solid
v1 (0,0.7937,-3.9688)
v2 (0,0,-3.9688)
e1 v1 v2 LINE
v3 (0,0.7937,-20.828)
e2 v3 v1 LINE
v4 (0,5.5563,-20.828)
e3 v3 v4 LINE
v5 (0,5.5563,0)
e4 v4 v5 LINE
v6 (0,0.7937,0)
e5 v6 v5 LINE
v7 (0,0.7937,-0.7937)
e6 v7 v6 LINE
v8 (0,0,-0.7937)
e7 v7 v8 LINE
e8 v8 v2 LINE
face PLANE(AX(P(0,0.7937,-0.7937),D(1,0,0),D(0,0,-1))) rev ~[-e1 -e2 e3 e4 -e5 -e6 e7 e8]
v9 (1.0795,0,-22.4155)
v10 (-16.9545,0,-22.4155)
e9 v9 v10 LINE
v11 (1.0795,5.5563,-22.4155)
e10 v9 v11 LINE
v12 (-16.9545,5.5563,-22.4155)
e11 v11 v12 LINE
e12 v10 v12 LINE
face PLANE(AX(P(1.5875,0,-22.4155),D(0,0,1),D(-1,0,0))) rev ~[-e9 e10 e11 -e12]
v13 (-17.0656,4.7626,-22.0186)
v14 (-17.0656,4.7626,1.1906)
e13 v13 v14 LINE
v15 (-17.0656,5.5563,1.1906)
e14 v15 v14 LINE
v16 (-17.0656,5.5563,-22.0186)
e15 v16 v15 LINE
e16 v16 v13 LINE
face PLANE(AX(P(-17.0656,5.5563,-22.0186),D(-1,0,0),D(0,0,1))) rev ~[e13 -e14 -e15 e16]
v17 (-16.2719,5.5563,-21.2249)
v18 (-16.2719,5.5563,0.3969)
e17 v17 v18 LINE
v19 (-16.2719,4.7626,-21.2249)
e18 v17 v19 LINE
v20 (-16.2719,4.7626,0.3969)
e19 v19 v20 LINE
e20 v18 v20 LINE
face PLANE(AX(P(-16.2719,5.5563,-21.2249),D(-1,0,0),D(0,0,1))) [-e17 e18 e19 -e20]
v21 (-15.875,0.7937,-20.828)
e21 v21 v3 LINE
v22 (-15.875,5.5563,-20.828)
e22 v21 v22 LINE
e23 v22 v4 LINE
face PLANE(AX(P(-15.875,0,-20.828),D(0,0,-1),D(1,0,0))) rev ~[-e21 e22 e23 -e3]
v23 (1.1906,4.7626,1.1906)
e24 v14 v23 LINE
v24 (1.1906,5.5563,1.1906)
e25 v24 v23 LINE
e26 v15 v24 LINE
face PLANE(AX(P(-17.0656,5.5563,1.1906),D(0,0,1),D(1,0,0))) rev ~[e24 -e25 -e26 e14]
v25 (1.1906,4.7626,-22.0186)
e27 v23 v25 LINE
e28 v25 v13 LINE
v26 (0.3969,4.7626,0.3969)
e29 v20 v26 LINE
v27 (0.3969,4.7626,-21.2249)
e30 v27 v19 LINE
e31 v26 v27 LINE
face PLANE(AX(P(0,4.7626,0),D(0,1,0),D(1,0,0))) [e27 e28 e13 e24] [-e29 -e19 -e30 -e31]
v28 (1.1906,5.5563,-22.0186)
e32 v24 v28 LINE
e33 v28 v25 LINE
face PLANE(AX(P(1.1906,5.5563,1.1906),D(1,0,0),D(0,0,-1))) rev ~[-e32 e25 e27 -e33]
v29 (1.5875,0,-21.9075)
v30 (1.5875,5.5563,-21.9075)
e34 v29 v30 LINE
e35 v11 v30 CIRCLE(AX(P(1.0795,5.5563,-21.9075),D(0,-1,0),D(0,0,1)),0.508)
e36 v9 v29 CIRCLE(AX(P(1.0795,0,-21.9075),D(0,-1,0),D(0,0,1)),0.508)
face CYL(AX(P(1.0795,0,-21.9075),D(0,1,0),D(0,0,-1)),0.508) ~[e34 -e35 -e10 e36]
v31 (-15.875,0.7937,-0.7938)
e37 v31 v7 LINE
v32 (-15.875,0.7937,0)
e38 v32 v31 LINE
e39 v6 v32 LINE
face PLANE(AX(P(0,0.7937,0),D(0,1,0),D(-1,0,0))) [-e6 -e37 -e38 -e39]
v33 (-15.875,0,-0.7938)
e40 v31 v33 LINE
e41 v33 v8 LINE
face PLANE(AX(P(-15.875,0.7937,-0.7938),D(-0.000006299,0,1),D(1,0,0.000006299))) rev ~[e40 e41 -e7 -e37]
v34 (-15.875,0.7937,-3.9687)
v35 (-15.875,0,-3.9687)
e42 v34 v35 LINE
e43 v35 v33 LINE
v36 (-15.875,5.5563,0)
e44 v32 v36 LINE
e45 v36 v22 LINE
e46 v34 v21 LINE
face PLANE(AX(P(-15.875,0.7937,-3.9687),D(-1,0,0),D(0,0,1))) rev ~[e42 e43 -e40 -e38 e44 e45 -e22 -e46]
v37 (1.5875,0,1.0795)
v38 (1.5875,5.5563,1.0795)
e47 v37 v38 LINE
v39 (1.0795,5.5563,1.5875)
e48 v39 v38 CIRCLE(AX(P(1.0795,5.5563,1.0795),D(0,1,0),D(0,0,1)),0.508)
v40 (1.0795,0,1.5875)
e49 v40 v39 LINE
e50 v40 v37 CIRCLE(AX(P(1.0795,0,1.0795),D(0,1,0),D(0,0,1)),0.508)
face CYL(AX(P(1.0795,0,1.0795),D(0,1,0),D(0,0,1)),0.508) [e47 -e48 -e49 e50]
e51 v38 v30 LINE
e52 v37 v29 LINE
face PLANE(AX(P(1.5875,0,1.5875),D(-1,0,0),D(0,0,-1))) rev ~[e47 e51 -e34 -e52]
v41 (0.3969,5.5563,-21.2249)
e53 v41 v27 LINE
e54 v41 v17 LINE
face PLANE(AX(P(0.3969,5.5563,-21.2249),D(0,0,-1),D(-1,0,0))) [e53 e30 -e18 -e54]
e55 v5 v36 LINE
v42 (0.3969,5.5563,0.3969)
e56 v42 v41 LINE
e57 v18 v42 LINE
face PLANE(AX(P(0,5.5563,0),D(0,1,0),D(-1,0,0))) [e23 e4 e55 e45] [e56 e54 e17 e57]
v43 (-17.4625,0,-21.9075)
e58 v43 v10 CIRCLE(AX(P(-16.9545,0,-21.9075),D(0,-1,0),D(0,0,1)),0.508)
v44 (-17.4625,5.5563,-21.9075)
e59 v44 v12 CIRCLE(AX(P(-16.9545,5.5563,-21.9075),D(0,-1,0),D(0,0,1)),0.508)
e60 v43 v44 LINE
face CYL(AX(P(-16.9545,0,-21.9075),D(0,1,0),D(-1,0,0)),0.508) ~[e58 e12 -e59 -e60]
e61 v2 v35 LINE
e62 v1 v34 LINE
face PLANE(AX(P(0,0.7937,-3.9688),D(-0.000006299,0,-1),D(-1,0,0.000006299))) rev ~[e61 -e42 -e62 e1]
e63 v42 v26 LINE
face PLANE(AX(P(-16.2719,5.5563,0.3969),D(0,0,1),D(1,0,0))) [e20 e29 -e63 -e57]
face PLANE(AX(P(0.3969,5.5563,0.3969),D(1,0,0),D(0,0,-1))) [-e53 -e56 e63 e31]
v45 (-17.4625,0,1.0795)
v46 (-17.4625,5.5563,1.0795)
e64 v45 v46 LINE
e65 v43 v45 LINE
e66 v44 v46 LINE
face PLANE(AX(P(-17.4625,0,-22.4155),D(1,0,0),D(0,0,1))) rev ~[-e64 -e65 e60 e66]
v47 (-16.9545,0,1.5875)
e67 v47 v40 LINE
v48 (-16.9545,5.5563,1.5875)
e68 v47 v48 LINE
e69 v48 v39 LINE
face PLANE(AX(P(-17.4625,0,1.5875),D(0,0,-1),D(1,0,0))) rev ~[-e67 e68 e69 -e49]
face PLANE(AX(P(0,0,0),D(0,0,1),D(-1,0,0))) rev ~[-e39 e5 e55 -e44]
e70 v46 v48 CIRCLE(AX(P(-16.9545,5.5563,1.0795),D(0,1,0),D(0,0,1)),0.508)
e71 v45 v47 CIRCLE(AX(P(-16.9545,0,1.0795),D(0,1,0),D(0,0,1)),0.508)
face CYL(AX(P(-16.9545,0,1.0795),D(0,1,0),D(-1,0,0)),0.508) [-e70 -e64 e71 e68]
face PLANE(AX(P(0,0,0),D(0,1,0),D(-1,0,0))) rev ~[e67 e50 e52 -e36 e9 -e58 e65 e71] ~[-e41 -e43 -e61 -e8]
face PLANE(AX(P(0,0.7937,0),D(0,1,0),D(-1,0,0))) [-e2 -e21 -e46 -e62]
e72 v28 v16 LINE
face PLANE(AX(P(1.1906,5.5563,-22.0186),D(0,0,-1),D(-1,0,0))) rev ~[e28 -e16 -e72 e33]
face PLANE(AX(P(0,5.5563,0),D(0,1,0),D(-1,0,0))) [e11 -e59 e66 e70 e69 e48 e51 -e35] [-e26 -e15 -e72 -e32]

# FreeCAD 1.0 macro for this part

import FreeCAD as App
import Part
import Sketcher
from FreeCAD import Vector
Q = App.Units.Quantity


def edges_at(feature, points):
    """Names of the edges that pass closest to the given points."""
    edges = feature.Shape.Edges
    near = lambda p: min(range(len(edges)), key=lambda i: edges[i].distToShape(Part.Vertex(*p))[0])
    return sorted({f"Edge{near(p) + 1}" for p in points})


def add_polygon(sketch, points):
    """Adds a closed chain of lines whose ends are joined by coincident constraints."""
    first, n = sketch.GeometryCount, len(points)
    for a, b in zip(points, points[1:] + points[:1]):
        sketch.addGeometry(Part.LineSegment(App.Vector(*a, 0), App.Vector(*b, 0)), False)
    for i in range(n):
        sketch.addConstraint(Sketcher.Constraint("Coincident", first + i, 2, first + (i + 1) % n, 1))

doc = App.newDocument("Part")
body = doc.addObject("PartDesign::Body", "Body")

# Sketch on XZ plane
sketch1 = body.newObject("Sketcher::SketchObject", "Sketch")
sketch1.AttachmentSupport = (doc.getObject("XZ_Plane"), [""])
sketch1.MapMode = "FlatFace"
add_polygon(sketch1, [(-16, 0), (0, 0), (0, -21), (-16, -21)])  # lines 0-3
sketch1.addConstraint([
    Sketcher.Constraint("Horizontal", 0),
    Sketcher.Constraint("Vertical", 1),
    Sketcher.Constraint("Horizontal", 2),
    Sketcher.Constraint("Vertical", 3),
    Sketcher.Constraint("Coincident", 0, 2, -1, 1),
    Sketcher.Constraint("DistanceY", 1, 2, 1, 1, Q("0.82 in")),
    Sketcher.Constraint("DistanceX", 0, 1, 0, 2, Q("0.625 in")),
])
pad1 = body.newObject("PartDesign::Pad", "Pad")
pad1.Profile = sketch1
pad1.Length = Q("0.031248 in")
pad1.Reversed = True

# Sketch on XZ plane
sketch2 = body.newObject("Sketcher::SketchObject", "Sketch001")
sketch2.AttachmentSupport = (doc.getObject("XZ_Plane"), [""])
sketch2.MapMode = "FlatFace"
add_polygon(sketch2, [(-17, -22), (-17, 2), (2, 2), (2, -22)])  # lines 0-3
add_polygon(sketch2, [(0, -21), (0, 0), (-16, 0), (-16, -21)])  # lines 4-7
sketch2.addConstraint([
    Sketcher.Constraint("Vertical", 0),
    Sketcher.Constraint("Horizontal", 1),
    Sketcher.Constraint("Vertical", 2),
    Sketcher.Constraint("Horizontal", 3),
    Sketcher.Constraint("Vertical", 4),
    Sketcher.Constraint("Horizontal", 5),
    Sketcher.Constraint("Vertical", 6),
    Sketcher.Constraint("Horizontal", 7),
    Sketcher.Constraint("Coincident", 4, 2, -1, 1),
    Sketcher.Constraint("DistanceY", 4, 1, 4, 2, Q("0.82 in")),
    Sketcher.Constraint("DistanceX", 5, 2, 5, 1, Q("0.625 in")),
    Sketcher.Constraint("DistanceY", -1, 1, 0, 2, Q("0.0625 in")),
    Sketcher.Constraint("DistanceX", -1, 1, 1, 2, Q("0.0625 in")),
    Sketcher.Constraint("DistanceX", 0, 2, 5, 2, Q("0.0625 in")),
    Sketcher.Constraint("DistanceY", 3, 2, 6, 2, Q("0.0625 in")),
])
pad2 = body.newObject("PartDesign::Pad", "Pad001")
pad2.Profile = sketch2
pad2.Length = Q("0.218752 in")
pad2.Reversed = True

# Sketch on XZ plane
sketch3 = body.newObject("Sketcher::SketchObject", "Sketch002")
sketch3.AttachmentSupport = (doc.getObject("XZ_Plane"), [""])
sketch3.MapMode = "FlatFace"
sketch3.AttachmentOffset = App.Placement(Vector(0, 0, -0.031248 * 25.4), App.Rotation())
add_polygon(sketch3, [(-15.9, -0.8), (0, -0.8), (0, -4), (-15.9, -4)])  # lines 0-3
sketch3.addConstraint([
    Sketcher.Constraint("Horizontal", 0),
    Sketcher.Constraint("Vertical", 1),
    Sketcher.Constraint("Horizontal", 2),
    Sketcher.Constraint("Vertical", 3),
    Sketcher.Constraint("PointOnObject", 0, 2, -2),
    Sketcher.Constraint("DistanceY", 1, 2, 1, 1, Q("0.125 in")),
    Sketcher.Constraint("DistanceY", 0, 2, -1, 1, Q("0.031248 in")),
    Sketcher.Constraint("DistanceX", 0, 1, 0, 2, Q("0.625 in")),
])
pocket1 = body.newObject("PartDesign::Pocket", "Pocket")
pocket1.Profile = sketch3
pocket1.Length = Q("0.218752 in")
pocket1.Reversed = True

# Sketch on XZ plane
sketch4 = body.newObject("Sketcher::SketchObject", "Sketch003")
sketch4.AttachmentSupport = (doc.getObject("XZ_Plane"), [""])
sketch4.MapMode = "FlatFace"
sketch4.AttachmentOffset = App.Placement(Vector(0, 0, -0.218752 * 25.4), App.Rotation())
add_polygon(sketch4, [(-17, -22), (-17, 1), (1, 1), (1, -22)])  # lines 0-3
add_polygon(sketch4, [(0, 0), (-16, 0), (-16, -21), (0, -21)])  # lines 4-7
sketch4.addConstraint([
    Sketcher.Constraint("Vertical", 0),
    Sketcher.Constraint("Horizontal", 1),
    Sketcher.Constraint("Vertical", 2),
    Sketcher.Constraint("Horizontal", 3),
    Sketcher.Constraint("Horizontal", 4),
    Sketcher.Constraint("Vertical", 5),
    Sketcher.Constraint("Horizontal", 6),
    Sketcher.Constraint("Vertical", 7),
    Sketcher.Constraint("DistanceY", -1, 1, 4, 2, Q("0.0156299 in")),
    Sketcher.Constraint("DistanceX", -1, 1, 6, 2, Q("0.0156299 in")),
    Sketcher.Constraint("DistanceX", 1, 1, 1, 2, Q("0.718748 in")),
    Sketcher.Constraint("DistanceX", 4, 2, 4, 1, Q("0.656252 in")),
    Sketcher.Constraint("DistanceX", 0, 2, -1, 1, Q("0.671874 in")),
    Sketcher.Constraint("DistanceY", -1, 1, 0, 2, Q("0.046874 in")),
    Sketcher.Constraint("DistanceY", 3, 2, 5, 2, Q("0.031248 in")),
    Sketcher.Constraint("DistanceY", 0, 1, 0, 2, 23.2092),
])
pocket2 = body.newObject("PartDesign::Pocket", "Pocket001")
pocket2.Profile = sketch4
pocket2.Length = Q("0.031248 in")
pocket2.Reversed = True
doc.recompute()

fillet = body.newObject("PartDesign::Fillet", "Fillet")
fillet.Base = (pocket2, edges_at(pocket2, [
    (-17.462, 2.778, 1.587),
    (-17.462, 2.778, -22.416),
    (1.587, 2.778, -22.416),
    (1.587, 2.778, 1.587),
]))
fillet.Radius = Q("0.02 in")

doc.recompute()
